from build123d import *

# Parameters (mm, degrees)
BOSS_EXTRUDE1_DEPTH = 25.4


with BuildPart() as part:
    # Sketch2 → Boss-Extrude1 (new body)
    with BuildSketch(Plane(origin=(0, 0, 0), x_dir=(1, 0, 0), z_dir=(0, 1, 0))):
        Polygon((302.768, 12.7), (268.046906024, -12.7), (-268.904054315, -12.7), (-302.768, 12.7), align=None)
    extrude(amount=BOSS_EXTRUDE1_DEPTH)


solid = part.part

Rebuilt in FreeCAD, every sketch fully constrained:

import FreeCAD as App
import Part
import Sketcher
Q = App.Units.Quantity

doc = App.newDocument("Part")
body = doc.addObject("PartDesign::Body", "Body")

sketch1 = body.newObject("Sketcher::SketchObject", "Sketch")
sketch1.AttachmentSupport = (doc.getObject("XZ_Plane"), [""])
sketch1.MapMode = "FlatFace"
sketch1.addGeometry([
    Part.LineSegment(App.Vector(268, 13, 0), App.Vector(303, -13, 0)),
    Part.LineSegment(App.Vector(303, -13, 0), App.Vector(-303, -13, 0)),
    Part.LineSegment(App.Vector(-303, -13, 0), App.Vector(-269, 13, 0)),
    Part.LineSegment(App.Vector(-269, 13, 0), App.Vector(268, 13, 0)),
], False)
sketch1.addConstraint([
    Sketcher.Constraint("Coincident", 0, 2, 1, 1),
    Sketcher.Constraint("Coincident", 1, 2, 2, 1),
    Sketcher.Constraint("Coincident", 2, 2, 3, 1),
    Sketcher.Constraint("Coincident", 3, 2, 0, 1),
    Sketcher.Constraint("Horizontal", 1),
    Sketcher.Constraint("Horizontal", 3),
    Sketcher.Constraint("DistanceY", 1, 2, 2, 2, Q("1 in")),
    Sketcher.Constraint("DistanceX", 1, 2, 1, 1, Q("23.84 in")),
    Sketcher.Constraint("DistanceY", 0, 2, -1, 1, Q("0.5 in")),
    Sketcher.Constraint("DistanceX", -1, 1, 0, 2, Q("11.92 in")),
    Sketcher.Constraint("DistanceX", 3, 1, 3, 2, 536.95096),
    Sketcher.Constraint("Distance", 0, 43.01993),
])
pad1 = body.newObject("PartDesign::Pad", "Pad")
pad1.Profile = sketch1
pad1.Length = Q("1 in")
pad1.Reversed = True

doc.recompute()
